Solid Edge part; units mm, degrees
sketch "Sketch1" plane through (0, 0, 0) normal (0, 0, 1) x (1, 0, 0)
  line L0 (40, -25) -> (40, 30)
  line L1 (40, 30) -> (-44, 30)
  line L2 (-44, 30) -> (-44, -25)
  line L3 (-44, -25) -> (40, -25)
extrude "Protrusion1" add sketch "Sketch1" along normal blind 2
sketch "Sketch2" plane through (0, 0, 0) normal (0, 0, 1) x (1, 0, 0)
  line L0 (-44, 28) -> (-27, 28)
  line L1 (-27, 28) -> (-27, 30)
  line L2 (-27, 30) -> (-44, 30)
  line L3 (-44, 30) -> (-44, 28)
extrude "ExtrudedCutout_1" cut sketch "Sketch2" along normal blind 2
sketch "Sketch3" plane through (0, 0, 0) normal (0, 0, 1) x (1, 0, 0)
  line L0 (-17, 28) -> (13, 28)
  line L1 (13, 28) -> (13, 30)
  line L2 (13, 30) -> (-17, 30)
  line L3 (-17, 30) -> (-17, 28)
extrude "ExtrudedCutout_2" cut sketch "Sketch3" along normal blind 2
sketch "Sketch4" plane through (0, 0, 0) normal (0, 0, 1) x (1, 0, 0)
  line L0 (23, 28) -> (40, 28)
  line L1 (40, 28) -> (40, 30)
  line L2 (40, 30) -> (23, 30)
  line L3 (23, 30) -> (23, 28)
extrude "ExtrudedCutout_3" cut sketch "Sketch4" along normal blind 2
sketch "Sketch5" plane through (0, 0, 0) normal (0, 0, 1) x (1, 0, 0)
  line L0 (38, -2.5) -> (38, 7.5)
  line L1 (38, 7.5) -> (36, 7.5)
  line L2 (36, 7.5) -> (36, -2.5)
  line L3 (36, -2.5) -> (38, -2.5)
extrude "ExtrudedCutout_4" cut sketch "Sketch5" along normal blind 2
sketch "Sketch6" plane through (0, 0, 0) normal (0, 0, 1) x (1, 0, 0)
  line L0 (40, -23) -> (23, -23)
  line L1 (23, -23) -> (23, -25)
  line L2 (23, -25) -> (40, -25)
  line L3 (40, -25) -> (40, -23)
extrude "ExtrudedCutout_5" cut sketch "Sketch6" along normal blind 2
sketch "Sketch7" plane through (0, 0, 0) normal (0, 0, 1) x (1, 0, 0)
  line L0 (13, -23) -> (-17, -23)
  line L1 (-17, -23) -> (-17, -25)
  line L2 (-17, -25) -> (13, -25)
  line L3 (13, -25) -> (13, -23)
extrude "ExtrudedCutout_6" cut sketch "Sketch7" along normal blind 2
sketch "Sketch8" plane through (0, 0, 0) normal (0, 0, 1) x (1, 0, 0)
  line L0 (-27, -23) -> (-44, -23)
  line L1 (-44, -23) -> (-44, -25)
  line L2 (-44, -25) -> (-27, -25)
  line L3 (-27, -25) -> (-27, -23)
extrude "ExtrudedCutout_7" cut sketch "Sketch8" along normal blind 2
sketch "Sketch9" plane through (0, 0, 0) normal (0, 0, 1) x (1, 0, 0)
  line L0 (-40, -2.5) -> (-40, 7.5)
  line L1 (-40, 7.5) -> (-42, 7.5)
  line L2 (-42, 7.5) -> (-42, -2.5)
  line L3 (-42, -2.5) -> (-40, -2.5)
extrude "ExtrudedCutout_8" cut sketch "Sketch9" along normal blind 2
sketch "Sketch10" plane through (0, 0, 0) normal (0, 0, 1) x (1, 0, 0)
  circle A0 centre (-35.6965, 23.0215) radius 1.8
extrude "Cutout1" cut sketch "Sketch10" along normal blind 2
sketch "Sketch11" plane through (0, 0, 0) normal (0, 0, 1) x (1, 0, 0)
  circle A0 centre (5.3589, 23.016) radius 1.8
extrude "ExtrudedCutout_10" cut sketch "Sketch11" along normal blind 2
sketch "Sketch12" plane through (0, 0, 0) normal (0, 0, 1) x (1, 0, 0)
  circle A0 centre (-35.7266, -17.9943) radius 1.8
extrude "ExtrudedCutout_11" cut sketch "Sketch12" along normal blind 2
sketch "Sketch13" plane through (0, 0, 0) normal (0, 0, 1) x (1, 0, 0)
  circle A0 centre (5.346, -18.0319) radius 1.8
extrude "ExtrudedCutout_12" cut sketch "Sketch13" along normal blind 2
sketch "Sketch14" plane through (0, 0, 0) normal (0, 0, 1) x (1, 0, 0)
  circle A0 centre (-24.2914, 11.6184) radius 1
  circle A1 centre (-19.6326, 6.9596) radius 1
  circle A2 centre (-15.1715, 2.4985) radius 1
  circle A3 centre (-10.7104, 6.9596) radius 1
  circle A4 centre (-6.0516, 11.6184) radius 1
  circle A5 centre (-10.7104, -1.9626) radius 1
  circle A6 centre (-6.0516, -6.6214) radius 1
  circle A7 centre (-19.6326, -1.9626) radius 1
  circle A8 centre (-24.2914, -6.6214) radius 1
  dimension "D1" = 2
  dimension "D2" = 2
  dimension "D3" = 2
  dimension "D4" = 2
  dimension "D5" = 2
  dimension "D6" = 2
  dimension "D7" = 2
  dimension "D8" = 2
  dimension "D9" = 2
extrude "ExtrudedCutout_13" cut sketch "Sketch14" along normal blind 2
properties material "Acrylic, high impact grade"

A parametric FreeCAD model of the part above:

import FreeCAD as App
import Part
import Sketcher
from FreeCAD import Vector

doc = App.newDocument("Part")
params = doc.addObject("Spreadsheet::Sheet", "Params")
for row, (alias, value) in enumerate([
    ("sketch1_width", "84 mm"),
    ("sketch1_height", "55 mm"),
    ("pad1_length", "2 mm"),
    ("sketch2_width", "17 mm"),
    ("sketch2_height", "2 mm"),
    ("pocket1_length", "2 mm"),
    ("sketch3_width", "30 mm"),
    ("sketch3_height", "2 mm"),
    ("pocket2_length", "2 mm"),
    ("sketch4_width", "17 mm"),
    ("sketch4_height", "2 mm"),
    ("pocket3_length", "2 mm"),
    ("sketch5_width", "2 mm"),
    ("sketch5_height", "10 mm"),
    ("pocket4_length", "2 mm"),
    ("sketch6_width", "17 mm"),
    ("sketch6_height", "2 mm"),
    ("pocket5_length", "2 mm"),
    ("sketch7_width", "30 mm"),
    ("sketch7_height", "2 mm"),
    ("pocket6_length", "2 mm"),
    ("sketch8_width", "17 mm"),
    ("sketch8_height", "2 mm"),
    ("pocket7_length", "2 mm"),
    ("sketch9_width", "2 mm"),
    ("sketch9_height", "10 mm"),
    ("pocket8_length", "2 mm"),
    ("sketch10_diameter", "3.6 mm"),
    ("pocket9_length", "2 mm"),
    ("sketch11_diameter", "3.6 mm"),
    ("pocket10_length", "2 mm"),
    ("sketch12_diameter", "3.6 mm"),
    ("pocket11_length", "2 mm"),
    ("sketch13_diameter", "3.6 mm"),
    ("pocket12_length", "2 mm"),
    ("sketch14_diameter", "2 mm"),
    ("pocket13_length", "2 mm"),
], start=1):
    params.set(f"A{row}", alias)
    params.set(f"B{row}", "=" + value)
    params.setAlias(f"B{row}", alias)

body = doc.addObject("PartDesign::Body", "Body")

sketch1 = body.newObject("Sketcher::SketchObject", "Sketch")
sketch1.AttachmentSupport = (doc.getObject("XY_Plane"), [""])
sketch1.MapMode = "FlatFace"
sketch1.addGeometry([
    Part.LineSegment(Vector(-44, -25, 0), Vector(40, -25, 0)),
    Part.LineSegment(Vector(40, -25, 0), Vector(40, 30, 0)),
    Part.LineSegment(Vector(40, 30, 0), Vector(-44, 30, 0)),
    Part.LineSegment(Vector(-44, 30, 0), Vector(-44, -25, 0)),
], False)
sketch1.addConstraint([
    Sketcher.Constraint("Coincident", 0, 2, 1, 1),
    Sketcher.Constraint("Coincident", 1, 2, 2, 1),
    Sketcher.Constraint("Coincident", 2, 2, 3, 1),
    Sketcher.Constraint("Coincident", 3, 2, 0, 1),
    Sketcher.Constraint("Horizontal", 0),
    Sketcher.Constraint("Vertical", 1),
    Sketcher.Constraint("Horizontal", 2),
    Sketcher.Constraint("Vertical", 3),
    Sketcher.Constraint("DistanceX", 0, 1, 0, 2, 84.0),
    Sketcher.Constraint("DistanceY", 1, 1, 1, 2, 55.0),
    Sketcher.Constraint("DistanceX", -1, 1, 0, 2, 40.0),
    Sketcher.Constraint("DistanceY", 0, 2, -1, 1, 25.0),
])
sketch1.setExpression("Constraints[8]", "Params.sketch1_width")
sketch1.setExpression("Constraints[9]", "Params.sketch1_height")
pad1 = body.newObject("PartDesign::Pad", "Pad")
pad1.Profile = sketch1
pad1.setExpression("Length", "Params.pad1_length")

sketch2 = body.newObject("Sketcher::SketchObject", "Sketch001")
sketch2.AttachmentSupport = (doc.getObject("XY_Plane"), [""])
sketch2.MapMode = "FlatFace"
sketch2.addGeometry([
    Part.LineSegment(Vector(-44, 30, 0), Vector(-44, 28, 0)),
    Part.LineSegment(Vector(-44, 28, 0), Vector(-27, 28, 0)),
    Part.LineSegment(Vector(-27, 28, 0), Vector(-27, 30, 0)),
    Part.LineSegment(Vector(-27, 30, 0), Vector(-44, 30, 0)),
], False)
sketch2.addConstraint([
    Sketcher.Constraint("Coincident", 0, 2, 1, 1),
    Sketcher.Constraint("Coincident", 1, 2, 2, 1),
    Sketcher.Constraint("Coincident", 2, 2, 3, 1),
    Sketcher.Constraint("Coincident", 3, 2, 0, 1),
    Sketcher.Constraint("Vertical", 0),
    Sketcher.Constraint("Horizontal", 1),
    Sketcher.Constraint("Vertical", 2),
    Sketcher.Constraint("Horizontal", 3),
    Sketcher.Constraint("DistanceX", 1, 1, 1, 2, 17.0),
    Sketcher.Constraint("DistanceY", 0, 2, 0, 1, 2.0),
    Sketcher.Constraint("DistanceX", 0, 2, -1, 1, 44.0),
    Sketcher.Constraint("DistanceY", -1, 1, 0, 2, 28.0),
])
sketch2.setExpression("Constraints[8]", "Params.sketch2_width")
sketch2.setExpression("Constraints[9]", "Params.sketch2_height")
pocket1 = body.newObject("PartDesign::Pocket", "Pocket")
pocket1.Profile = sketch2
pocket1.setExpression("Length", "Params.pocket1_length")
pocket1.Reversed = True

sketch3 = body.newObject("Sketcher::SketchObject", "Sketch002")
sketch3.AttachmentSupport = (doc.getObject("XY_Plane"), [""])
sketch3.MapMode = "FlatFace"
sketch3.addGeometry([
    Part.LineSegment(Vector(-17, 30, 0), Vector(-17, 28, 0)),
    Part.LineSegment(Vector(-17, 28, 0), Vector(13, 28, 0)),
    Part.LineSegment(Vector(13, 28, 0), Vector(13, 30, 0)),
    Part.LineSegment(Vector(13, 30, 0), Vector(-17, 30, 0)),
], False)
sketch3.addConstraint([
    Sketcher.Constraint("Coincident", 0, 2, 1, 1),
    Sketcher.Constraint("Coincident", 1, 2, 2, 1),
    Sketcher.Constraint("Coincident", 2, 2, 3, 1),
    Sketcher.Constraint("Coincident", 3, 2, 0, 1),
    Sketcher.Constraint("Vertical", 0),
    Sketcher.Constraint("Horizontal", 1),
    Sketcher.Constraint("Vertical", 2),
    Sketcher.Constraint("Horizontal", 3),
    Sketcher.Constraint("DistanceX", 1, 1, 1, 2, 30.0),
    Sketcher.Constraint("DistanceY", 0, 2, 0, 1, 2.0),
    Sketcher.Constraint("DistanceX", 0, 2, -1, 1, 17.0),
    Sketcher.Constraint("DistanceY", -1, 1, 0, 2, 28.0),
])
sketch3.setExpression("Constraints[8]", "Params.sketch3_width")
sketch3.setExpression("Constraints[9]", "Params.sketch3_height")
pocket2 = body.newObject("PartDesign::Pocket", "Pocket001")
pocket2.Profile = sketch3
pocket2.setExpression("Length", "Params.pocket2_length")
pocket2.Reversed = True

sketch4 = body.newObject("Sketcher::SketchObject", "Sketch003")
sketch4.AttachmentSupport = (doc.getObject("XY_Plane"), [""])
sketch4.MapMode = "FlatFace"
sketch4.addGeometry([
    Part.LineSegment(Vector(23, 30, 0), Vector(23, 28, 0)),
    Part.LineSegment(Vector(23, 28, 0), Vector(40, 28, 0)),
    Part.LineSegment(Vector(40, 28, 0), Vector(40, 30, 0)),
    Part.LineSegment(Vector(40, 30, 0), Vector(23, 30, 0)),
], False)
sketch4.addConstraint([
    Sketcher.Constraint("Coincident", 0, 2, 1, 1),
    Sketcher.Constraint("Coincident", 1, 2, 2, 1),
    Sketcher.Constraint("Coincident", 2, 2, 3, 1),
    Sketcher.Constraint("Coincident", 3, 2, 0, 1),
    Sketcher.Constraint("Vertical", 0),
    Sketcher.Constraint("Horizontal", 1),
    Sketcher.Constraint("Vertical", 2),
    Sketcher.Constraint("Horizontal", 3),
    Sketcher.Constraint("DistanceX", 1, 1, 1, 2, 17.0),
    Sketcher.Constraint("DistanceY", 0, 2, 0, 1, 2.0),
    Sketcher.Constraint("DistanceX", -1, 1, 0, 2, 23.0),
    Sketcher.Constraint("DistanceY", -1, 1, 0, 2, 28.0),
])
sketch4.setExpression("Constraints[8]", "Params.sketch4_width")
sketch4.setExpression("Constraints[9]", "Params.sketch4_height")
pocket3 = body.newObject("PartDesign::Pocket", "Pocket002")
pocket3.Profile = sketch4
pocket3.setExpression("Length", "Params.pocket3_length")
pocket3.Reversed = True

sketch5 = body.newObject("Sketcher::SketchObject", "Sketch004")
sketch5.AttachmentSupport = (doc.getObject("XY_Plane"), [""])
sketch5.MapMode = "FlatFace"
sketch5.addGeometry([
    Part.LineSegment(Vector(36, -2.5, 0), Vector(38, -2.5, 0)),
    Part.LineSegment(Vector(38, -2.5, 0), Vector(38, 7.5, 0)),
    Part.LineSegment(Vector(38, 7.5, 0), Vector(36, 7.5, 0)),
    Part.LineSegment(Vector(36, 7.5, 0), Vector(36, -2.5, 0)),
], False)
sketch5.addConstraint([
    Sketcher.Constraint("Coincident", 0, 2, 1, 1),
    Sketcher.Constraint("Coincident", 1, 2, 2, 1),
    Sketcher.Constraint("Coincident", 2, 2, 3, 1),
    Sketcher.Constraint("Coincident", 3, 2, 0, 1),
    Sketcher.Constraint("Horizontal", 0),
    Sketcher.Constraint("Vertical", 1),
    Sketcher.Constraint("Horizontal", 2),
    Sketcher.Constraint("Vertical", 3),
    Sketcher.Constraint("DistanceX", 0, 1, 0, 2, 2.0),
    Sketcher.Constraint("DistanceY", 1, 1, 1, 2, 10.0),
    Sketcher.Constraint("DistanceX", -1, 1, 0, 2, 38.0),
    Sketcher.Constraint("DistanceY", 0, 2, -1, 1, 2.5),
])
sketch5.setExpression("Constraints[8]", "Params.sketch5_width")
sketch5.setExpression("Constraints[9]", "Params.sketch5_height")
pocket4 = body.newObject("PartDesign::Pocket", "Pocket003")
pocket4.Profile = sketch5
pocket4.setExpression("Length", "Params.pocket4_length")
pocket4.Reversed = True

sketch6 = body.newObject("Sketcher::SketchObject", "Sketch005")
sketch6.AttachmentSupport = (doc.getObject("XY_Plane"), [""])
sketch6.MapMode = "FlatFace"
sketch6.addGeometry([
    Part.LineSegment(Vector(40, -25, 0), Vector(40, -23, 0)),
    Part.LineSegment(Vector(40, -23, 0), Vector(23, -23, 0)),
    Part.LineSegment(Vector(23, -23, 0), Vector(23, -25, 0)),
    Part.LineSegment(Vector(23, -25, 0), Vector(40, -25, 0)),
], False)
sketch6.addConstraint([
    Sketcher.Constraint("Coincident", 0, 2, 1, 1),
    Sketcher.Constraint("Coincident", 1, 2, 2, 1),
    Sketcher.Constraint("Coincident", 2, 2, 3, 1),
    Sketcher.Constraint("Coincident", 3, 2, 0, 1),
    Sketcher.Constraint("Vertical", 0),
    Sketcher.Constraint("Horizontal", 1),
    Sketcher.Constraint("Vertical", 2),
    Sketcher.Constraint("Horizontal", 3),
    Sketcher.Constraint("DistanceX", 1, 2, 1, 1, 17.0),
    Sketcher.Constraint("DistanceY", 0, 1, 0, 2, 2.0),
    Sketcher.Constraint("DistanceX", -1, 1, 0, 2, 40.0),
    Sketcher.Constraint("DistanceY", 0, 2, -1, 1, 23.0),
])
sketch6.setExpression("Constraints[8]", "Params.sketch6_width")
sketch6.setExpression("Constraints[9]", "Params.sketch6_height")
pocket5 = body.newObject("PartDesign::Pocket", "Pocket004")
pocket5.Profile = sketch6
pocket5.setExpression("Length", "Params.pocket5_length")
pocket5.Reversed = True

sketch7 = body.newObject("Sketcher::SketchObject", "Sketch006")
sketch7.AttachmentSupport = (doc.getObject("XY_Plane"), [""])
sketch7.MapMode = "FlatFace"
sketch7.addGeometry([
    Part.LineSegment(Vector(13, -25, 0), Vector(13, -23, 0)),
    Part.LineSegment(Vector(13, -23, 0), Vector(-17, -23, 0)),
    Part.LineSegment(Vector(-17, -23, 0), Vector(-17, -25, 0)),
    Part.LineSegment(Vector(-17, -25, 0), Vector(13, -25, 0)),
], False)
sketch7.addConstraint([
    Sketcher.Constraint("Coincident", 0, 2, 1, 1),
    Sketcher.Constraint("Coincident", 1, 2, 2, 1),
    Sketcher.Constraint("Coincident", 2, 2, 3, 1),
    Sketcher.Constraint("Coincident", 3, 2, 0, 1),
    Sketcher.Constraint("Vertical", 0),
    Sketcher.Constraint("Horizontal", 1),
    Sketcher.Constraint("Vertical", 2),
    Sketcher.Constraint("Horizontal", 3),
    Sketcher.Constraint("DistanceX", 1, 2, 1, 1, 30.0),
    Sketcher.Constraint("DistanceY", 0, 1, 0, 2, 2.0),
    Sketcher.Constraint("DistanceX", -1, 1, 0, 2, 13.0),
    Sketcher.Constraint("DistanceY", 0, 2, -1, 1, 23.0),
])
sketch7.setExpression("Constraints[8]", "Params.sketch7_width")
sketch7.setExpression("Constraints[9]", "Params.sketch7_height")
pocket6 = body.newObject("PartDesign::Pocket", "Pocket005")
pocket6.Profile = sketch7
pocket6.setExpression("Length", "Params.pocket6_length")
pocket6.Reversed = True

sketch8 = body.newObject("Sketcher::SketchObject", "Sketch007")
sketch8.AttachmentSupport = (doc.getObject("XY_Plane"), [""])
sketch8.MapMode = "FlatFace"
sketch8.addGeometry([
    Part.LineSegment(Vector(-27, -25, 0), Vector(-27, -23, 0)),
    Part.LineSegment(Vector(-27, -23, 0), Vector(-44, -23, 0)),
    Part.LineSegment(Vector(-44, -23, 0), Vector(-44, -25, 0)),
    Part.LineSegment(Vector(-44, -25, 0), Vector(-27, -25, 0)),
], False)
sketch8.addConstraint([
    Sketcher.Constraint("Coincident", 0, 2, 1, 1),
    Sketcher.Constraint("Coincident", 1, 2, 2, 1),
    Sketcher.Constraint("Coincident", 2, 2, 3, 1),
    Sketcher.Constraint("Coincident", 3, 2, 0, 1),
    Sketcher.Constraint("Vertical", 0),
    Sketcher.Constraint("Horizontal", 1),
    Sketcher.Constraint("Vertical", 2),
    Sketcher.Constraint("Horizontal", 3),
    Sketcher.Constraint("DistanceX", 1, 2, 1, 1, 17.0),
    Sketcher.Constraint("DistanceY", 0, 1, 0, 2, 2.0),
    Sketcher.Constraint("DistanceX", 0, 2, -1, 1, 27.0),
    Sketcher.Constraint("DistanceY", 0, 2, -1, 1, 23.0),
])
sketch8.setExpression("Constraints[8]", "Params.sketch8_width")
sketch8.setExpression("Constraints[9]", "Params.sketch8_height")
pocket7 = body.newObject("PartDesign::Pocket", "Pocket006")
pocket7.Profile = sketch8
pocket7.setExpression("Length", "Params.pocket7_length")
pocket7.Reversed = True

sketch9 = body.newObject("Sketcher::SketchObject", "Sketch008")
sketch9.AttachmentSupport = (doc.getObject("XY_Plane"), [""])
sketch9.MapMode = "FlatFace"
sketch9.addGeometry([
    Part.LineSegment(Vector(-42, -2.5, 0), Vector(-40, -2.5, 0)),
    Part.LineSegment(Vector(-40, -2.5, 0), Vector(-40, 7.5, 0)),
    Part.LineSegment(Vector(-40, 7.5, 0), Vector(-42, 7.5, 0)),
    Part.LineSegment(Vector(-42, 7.5, 0), Vector(-42, -2.5, 0)),
], False)
sketch9.addConstraint([
    Sketcher.Constraint("Coincident", 0, 2, 1, 1),
    Sketcher.Constraint("Coincident", 1, 2, 2, 1),
    Sketcher.Constraint("Coincident", 2, 2, 3, 1),
    Sketcher.Constraint("Coincident", 3, 2, 0, 1),
    Sketcher.Constraint("Horizontal", 0),
    Sketcher.Constraint("Vertical", 1),
    Sketcher.Constraint("Horizontal", 2),
    Sketcher.Constraint("Vertical", 3),
    Sketcher.Constraint("DistanceX", 0, 1, 0, 2, 2.0),
    Sketcher.Constraint("DistanceY", 1, 1, 1, 2, 10.0),
    Sketcher.Constraint("DistanceX", 0, 2, -1, 1, 40.0),
    Sketcher.Constraint("DistanceY", 0, 2, -1, 1, 2.5),
])
sketch9.setExpression("Constraints[8]", "Params.sketch9_width")
sketch9.setExpression("Constraints[9]", "Params.sketch9_height")
pocket8 = body.newObject("PartDesign::Pocket", "Pocket007")
pocket8.Profile = sketch9
pocket8.setExpression("Length", "Params.pocket8_length")
pocket8.Reversed = True

sketch10 = body.newObject("Sketcher::SketchObject", "Sketch009")
sketch10.AttachmentSupport = (doc.getObject("XY_Plane"), [""])
sketch10.MapMode = "FlatFace"
sketch10.addGeometry(Part.Circle(Vector(-35.7, 23, 0), Vector(0, 0, 1), 1.8), False)
sketch10.addConstraint([
    Sketcher.Constraint("Diameter", 0, 3.6),
    Sketcher.Constraint("DistanceX", 0, 3, -1, 1, 35.6965),
    Sketcher.Constraint("DistanceY", -1, 1, 0, 3, 23.0215),
])
sketch10.setExpression("Constraints[0]", "Params.sketch10_diameter")
pocket9 = body.newObject("PartDesign::Pocket", "Pocket008")
pocket9.Profile = sketch10
pocket9.setExpression("Length", "Params.pocket9_length")
pocket9.Reversed = True

sketch11 = body.newObject("Sketcher::SketchObject", "Sketch010")
sketch11.AttachmentSupport = (doc.getObject("XY_Plane"), [""])
sketch11.MapMode = "FlatFace"
sketch11.addGeometry(Part.Circle(Vector(5.4, 23, 0), Vector(0, 0, 1), 1.8), False)
sketch11.addConstraint([
    Sketcher.Constraint("Diameter", 0, 3.6),
    Sketcher.Constraint("DistanceX", -1, 1, 0, 3, 5.359),
    Sketcher.Constraint("DistanceY", -1, 1, 0, 3, 23.016),
])
sketch11.setExpression("Constraints[0]", "Params.sketch11_diameter")
pocket10 = body.newObject("PartDesign::Pocket", "Pocket009")
pocket10.Profile = sketch11
pocket10.setExpression("Length", "Params.pocket10_length")
pocket10.Reversed = True

sketch12 = body.newObject("Sketcher::SketchObject", "Sketch011")
sketch12.AttachmentSupport = (doc.getObject("XY_Plane"), [""])
sketch12.MapMode = "FlatFace"
sketch12.addGeometry(Part.Circle(Vector(-35.7, -18, 0), Vector(0, 0, 1), 1.8), False)
sketch12.addConstraint([
    Sketcher.Constraint("Diameter", 0, 3.6),
    Sketcher.Constraint("DistanceX", 0, 3, -1, 1, 35.7266),
    Sketcher.Constraint("DistanceY", 0, 3, -1, 1, 17.9943),
])
sketch12.setExpression("Constraints[0]", "Params.sketch12_diameter")
pocket11 = body.newObject("PartDesign::Pocket", "Pocket010")
pocket11.Profile = sketch12
pocket11.setExpression("Length", "Params.pocket11_length")
pocket11.Reversed = True

sketch13 = body.newObject("Sketcher::SketchObject", "Sketch012")
sketch13.AttachmentSupport = (doc.getObject("XY_Plane"), [""])
sketch13.MapMode = "FlatFace"
sketch13.addGeometry(Part.Circle(Vector(5.3, -18, 0), Vector(0, 0, 1), 1.8), False)
sketch13.addConstraint([
    Sketcher.Constraint("Diameter", 0, 3.6),
    Sketcher.Constraint("DistanceX", -1, 1, 0, 3, 5.346),
    Sketcher.Constraint("DistanceY", 0, 3, -1, 1, 18.032),
])
sketch13.setExpression("Constraints[0]", "Params.sketch13_diameter")
pocket12 = body.newObject("PartDesign::Pocket", "Pocket011")
pocket12.Profile = sketch13
pocket12.setExpression("Length", "Params.pocket12_length")
pocket12.Reversed = True

sketch14 = body.newObject("Sketcher::SketchObject", "Sketch013")
sketch14.AttachmentSupport = (doc.getObject("XY_Plane"), [""])
sketch14.MapMode = "FlatFace"
sketch14.addGeometry([
    Part.Circle(Vector(-24.3, 11.6, 0), Vector(0, 0, 1), 1),
    Part.Circle(Vector(-19.6, 7, 0), Vector(0, 0, 1), 1),
    Part.Circle(Vector(-15.2, 2.5, 0), Vector(0, 0, 1), 1),
    Part.Circle(Vector(-10.7, 7, 0), Vector(0, 0, 1), 1),
    Part.Circle(Vector(-6.1, 11.6, 0), Vector(0, 0, 1), 1),
    Part.Circle(Vector(-10.7, -2, 0), Vector(0, 0, 1), 1),
    Part.Circle(Vector(-6.1, -6.6, 0), Vector(0, 0, 1), 1),
    Part.Circle(Vector(-19.6, -2, 0), Vector(0, 0, 1), 1),
    Part.Circle(Vector(-24.3, -6.6, 0), Vector(0, 0, 1), 1),
], False)
sketch14.addConstraint([
    Sketcher.Constraint("Equal", 0, 1),
    Sketcher.Constraint("Equal", 1, 2),
    Sketcher.Constraint("Equal", 2, 3),
    Sketcher.Constraint("Equal", 3, 4),
    Sketcher.Constraint("Equal", 4, 5),
    Sketcher.Constraint("Equal", 5, 6),
    Sketcher.Constraint("Equal", 6, 7),
    Sketcher.Constraint("Equal", 7, 8),
    Sketcher.Constraint("Horizontal", 1, 3, 3, 3),
    Sketcher.Constraint("Horizontal", 0, 3, 4, 3),
    Sketcher.Constraint("Horizontal", 5, 3, 7, 3),
    Sketcher.Constraint("Horizontal", 6, 3, 8, 3),
    Sketcher.Constraint("Vertical", 3, 3, 5, 3),
    Sketcher.Constraint("Vertical", 4, 3, 6, 3),
    Sketcher.Constraint("Vertical", 1, 3, 7, 3),
    Sketcher.Constraint("Vertical", 0, 3, 8, 3),
    Sketcher.Constraint("Diameter", 0, 2.0),
    Sketcher.Constraint("DistanceX", 0, 3, 2, 3, 9.12),
    Sketcher.Constraint("DistanceY", 2, 3, 0, 3, 9.12),
    Sketcher.Constraint("DistanceX", 2, 3, 4, 3, 9.12),
    Sketcher.Constraint("DistanceY", 6, 3, 2, 3, 9.12),
    Sketcher.Constraint("DistanceX", 1, 3, 2, 3, 4.461),
    Sketcher.Constraint("DistanceY", 2, 3, 1, 3, 4.461),
    Sketcher.Constraint("DistanceX", 2, 3, 3, 3, 4.461),
    Sketcher.Constraint("DistanceY", 5, 3, 2, 3, 4.461),
    Sketcher.Constraint("DistanceX", 0, 3, -1, 1, 24.2914),
    Sketcher.Constraint("DistanceY", -1, 1, 0, 3, 11.6184),
])
sketch14.setExpression("Constraints[16]", "Params.sketch14_diameter")
pocket13 = body.newObject("PartDesign::Pocket", "Pocket012")
pocket13.Profile = sketch14
pocket13.setExpression("Length", "Params.pocket13_length")
pocket13.Reversed = True

doc.recompute()
